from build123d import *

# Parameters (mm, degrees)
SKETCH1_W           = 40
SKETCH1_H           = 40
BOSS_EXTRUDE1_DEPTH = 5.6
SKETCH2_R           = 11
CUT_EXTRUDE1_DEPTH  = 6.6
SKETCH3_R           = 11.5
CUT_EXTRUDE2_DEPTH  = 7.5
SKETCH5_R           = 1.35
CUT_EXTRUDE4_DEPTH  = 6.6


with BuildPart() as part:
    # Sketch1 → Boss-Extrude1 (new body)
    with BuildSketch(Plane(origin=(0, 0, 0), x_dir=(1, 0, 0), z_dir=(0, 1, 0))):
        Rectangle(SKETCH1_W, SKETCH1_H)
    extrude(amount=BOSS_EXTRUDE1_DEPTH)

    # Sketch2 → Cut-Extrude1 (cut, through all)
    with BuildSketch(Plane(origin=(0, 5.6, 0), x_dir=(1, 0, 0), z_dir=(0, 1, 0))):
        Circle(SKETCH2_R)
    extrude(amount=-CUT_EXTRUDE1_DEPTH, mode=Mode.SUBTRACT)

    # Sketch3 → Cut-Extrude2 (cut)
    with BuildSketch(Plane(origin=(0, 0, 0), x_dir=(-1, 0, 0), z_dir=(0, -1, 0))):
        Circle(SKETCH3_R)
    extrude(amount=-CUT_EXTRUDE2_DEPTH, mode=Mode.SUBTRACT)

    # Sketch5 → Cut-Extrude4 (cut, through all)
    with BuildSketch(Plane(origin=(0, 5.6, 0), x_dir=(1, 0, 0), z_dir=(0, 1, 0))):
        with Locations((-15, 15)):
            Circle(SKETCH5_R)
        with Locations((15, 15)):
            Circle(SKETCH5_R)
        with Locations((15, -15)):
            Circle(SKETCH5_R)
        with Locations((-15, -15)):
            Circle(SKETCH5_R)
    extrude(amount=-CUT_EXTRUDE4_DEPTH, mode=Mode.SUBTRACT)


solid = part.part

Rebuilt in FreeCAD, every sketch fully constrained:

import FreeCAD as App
import Part
import Sketcher

V = App.Vector


def add_polygon(sketch, points):
    """Adds a closed chain of lines whose ends are joined by coincident constraints."""
    first, n = sketch.GeometryCount, len(points)
    for a, b in zip(points, points[1:] + points[:1]):
        sketch.addGeometry(Part.LineSegment(App.Vector(*a, 0), App.Vector(*b, 0)), False)
    for i in range(n):
        sketch.addConstraint(Sketcher.Constraint("Coincident", first + i, 2, first + (i + 1) % n, 1))

doc = App.newDocument("Part")
body = doc.addObject("PartDesign::Body", "Body")

# Sketch on XZ plane
sketch1 = body.newObject("Sketcher::SketchObject", "Sketch")
sketch1.AttachmentSupport = (doc.getObject("XZ_Plane"), [""])
sketch1.MapMode = "FlatFace"
add_polygon(sketch1, [(-20, -20), (-20, 20), (20, 20), (20, -20)])  # lines 0-3
sketch1.addConstraint([
    Sketcher.Constraint("Vertical", 0),
    Sketcher.Constraint("Horizontal", 1),
    Sketcher.Constraint("Vertical", 2),
    Sketcher.Constraint("Horizontal", 3),
    Sketcher.Constraint("Symmetric", 0, 2, 2, 2, -1, 1),
    Sketcher.Constraint("Equal", 3, 0),
    Sketcher.Constraint("DistanceX", 1, 1, 1, 2, 40.0),
])
pad1 = body.newObject("PartDesign::Pad", "Pad")
pad1.Profile = sketch1
pad1.Length = 5.6
pad1.Reversed = True

# Sketch on XZ plane
sketch2 = body.newObject("Sketcher::SketchObject", "Sketch001")
sketch2.AttachmentSupport = (doc.getObject("XZ_Plane"), [""])
sketch2.MapMode = "FlatFace"
sketch2.AttachmentOffset = App.Placement(V(0, 0, -5.6), App.Rotation())
sketch2.addGeometry(Part.Circle(V(0, 0, 0), V(0, 0, 1), 11), False)
sketch2.addConstraint([
    Sketcher.Constraint("Coincident", 0, 3, -1, 1),
    Sketcher.Constraint("Diameter", 0, 22.0),
])
pocket1 = body.newObject("PartDesign::Pocket", "Pocket")
pocket1.Profile = sketch2
pocket1.Type = "ThroughAll"
pocket1.Reversed = True

# Sketch on XZ plane
sketch3 = body.newObject("Sketcher::SketchObject", "Sketch002")
sketch3.AttachmentSupport = (doc.getObject("XZ_Plane"), [""])
sketch3.MapMode = "FlatFace"
sketch3.addGeometry(Part.Circle(V(0, 0, 0), V(0, 0, 1), 12), False)
sketch3.addConstraint([
    Sketcher.Constraint("Coincident", 0, 3, -1, 1),
    Sketcher.Constraint("Diameter", 0, 23.0),
])
pocket2 = body.newObject("PartDesign::Pocket", "Pocket001")
pocket2.Profile = sketch3
pocket2.Length = 7.5

# Sketch on XZ plane
sketch4 = body.newObject("Sketcher::SketchObject", "Sketch003")
sketch4.AttachmentSupport = (doc.getObject("XZ_Plane"), [""])
sketch4.MapMode = "FlatFace"
sketch4.AttachmentOffset = App.Placement(V(0, 0, -5.6), App.Rotation())
sketch4.addGeometry([
    Part.Circle(V(-15, -15, 0), V(0, 0, 1), 1.4),
    Part.Circle(V(15, -15, 0), V(0, 0, 1), 1.4),
    Part.Circle(V(15, 15, 0), V(0, 0, 1), 1.4),
    Part.Circle(V(-15, 15, 0), V(0, 0, 1), 1.4),
], False)
sketch4.addConstraint([
    Sketcher.Constraint("Equal", 0, 1),
    Sketcher.Constraint("Equal", 1, 2),
    Sketcher.Constraint("Equal", 2, 3),
    Sketcher.Constraint("Symmetric", 0, 3, 2, 3, -1, 1),
    Sketcher.Constraint("Symmetric", 1, 3, 3, 3, -1, 1),
    Sketcher.Constraint("Symmetric", 0, 3, 1, 3, -2),
    Sketcher.Constraint("Diameter", 0, 2.7),
    Sketcher.Constraint("DistanceX", 0, 3, -1, 1, 15.0),
    Sketcher.Constraint("DistanceY", 0, 3, -1, 1, 15.0),
])
pocket3 = body.newObject("PartDesign::Pocket", "Pocket002")
pocket3.Profile = sketch4
pocket3.Type = "ThroughAll"
pocket3.Reversed = True

doc.recompute()
